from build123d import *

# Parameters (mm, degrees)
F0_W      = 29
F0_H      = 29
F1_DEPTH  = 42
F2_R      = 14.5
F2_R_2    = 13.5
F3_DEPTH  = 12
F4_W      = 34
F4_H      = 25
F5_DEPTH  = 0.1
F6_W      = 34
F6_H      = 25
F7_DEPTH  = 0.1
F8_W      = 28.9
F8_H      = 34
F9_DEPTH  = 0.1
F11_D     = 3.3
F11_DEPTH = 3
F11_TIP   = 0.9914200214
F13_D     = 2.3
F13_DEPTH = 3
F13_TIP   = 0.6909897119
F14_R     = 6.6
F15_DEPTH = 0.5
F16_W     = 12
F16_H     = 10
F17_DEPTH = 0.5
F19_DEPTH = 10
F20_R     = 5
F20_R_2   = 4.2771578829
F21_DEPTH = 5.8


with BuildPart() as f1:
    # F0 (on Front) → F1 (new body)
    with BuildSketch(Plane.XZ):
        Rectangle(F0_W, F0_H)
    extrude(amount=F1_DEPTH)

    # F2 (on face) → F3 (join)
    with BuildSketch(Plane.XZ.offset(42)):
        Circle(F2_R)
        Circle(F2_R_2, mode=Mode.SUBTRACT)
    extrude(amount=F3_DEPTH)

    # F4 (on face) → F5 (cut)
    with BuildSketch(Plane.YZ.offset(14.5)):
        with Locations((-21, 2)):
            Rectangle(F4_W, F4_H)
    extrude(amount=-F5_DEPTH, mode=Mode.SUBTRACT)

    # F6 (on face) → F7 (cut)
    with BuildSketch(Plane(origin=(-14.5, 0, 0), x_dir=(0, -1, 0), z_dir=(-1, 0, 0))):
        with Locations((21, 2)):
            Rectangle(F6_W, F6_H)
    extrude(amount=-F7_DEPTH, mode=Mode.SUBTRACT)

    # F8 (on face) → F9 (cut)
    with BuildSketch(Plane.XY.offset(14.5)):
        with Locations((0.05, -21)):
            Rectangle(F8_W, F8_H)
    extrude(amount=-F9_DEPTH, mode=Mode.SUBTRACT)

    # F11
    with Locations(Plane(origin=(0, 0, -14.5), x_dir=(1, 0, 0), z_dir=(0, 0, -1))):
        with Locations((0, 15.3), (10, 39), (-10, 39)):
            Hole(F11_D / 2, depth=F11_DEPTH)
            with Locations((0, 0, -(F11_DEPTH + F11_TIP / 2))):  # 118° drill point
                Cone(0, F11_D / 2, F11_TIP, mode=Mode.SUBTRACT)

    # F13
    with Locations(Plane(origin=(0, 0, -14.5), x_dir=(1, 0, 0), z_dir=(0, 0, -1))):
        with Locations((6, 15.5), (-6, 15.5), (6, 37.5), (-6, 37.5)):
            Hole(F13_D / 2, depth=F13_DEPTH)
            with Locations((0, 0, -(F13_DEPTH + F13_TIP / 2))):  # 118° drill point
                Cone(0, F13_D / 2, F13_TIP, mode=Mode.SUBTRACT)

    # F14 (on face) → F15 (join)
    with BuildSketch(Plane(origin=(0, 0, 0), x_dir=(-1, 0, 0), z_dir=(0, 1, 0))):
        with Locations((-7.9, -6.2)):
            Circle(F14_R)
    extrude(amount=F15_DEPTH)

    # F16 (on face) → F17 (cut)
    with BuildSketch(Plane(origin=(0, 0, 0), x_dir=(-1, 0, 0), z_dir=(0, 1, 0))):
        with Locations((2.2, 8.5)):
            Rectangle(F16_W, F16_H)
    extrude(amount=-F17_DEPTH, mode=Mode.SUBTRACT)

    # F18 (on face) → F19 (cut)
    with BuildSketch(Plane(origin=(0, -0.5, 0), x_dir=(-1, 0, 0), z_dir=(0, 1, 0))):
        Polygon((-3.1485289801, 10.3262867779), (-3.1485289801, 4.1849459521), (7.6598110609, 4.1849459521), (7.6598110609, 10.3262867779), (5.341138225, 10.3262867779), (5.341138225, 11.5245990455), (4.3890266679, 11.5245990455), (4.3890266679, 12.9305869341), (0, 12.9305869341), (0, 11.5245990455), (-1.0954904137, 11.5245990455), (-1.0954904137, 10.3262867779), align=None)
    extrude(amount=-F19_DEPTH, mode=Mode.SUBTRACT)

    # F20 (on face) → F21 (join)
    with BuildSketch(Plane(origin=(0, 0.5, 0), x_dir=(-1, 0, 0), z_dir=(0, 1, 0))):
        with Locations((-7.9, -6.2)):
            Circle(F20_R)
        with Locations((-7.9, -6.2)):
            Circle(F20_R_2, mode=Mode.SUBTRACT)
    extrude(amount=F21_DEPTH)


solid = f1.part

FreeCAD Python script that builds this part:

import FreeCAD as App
import Part
import Sketcher
from FreeCAD import Vector


def add_polygon(sketch, points):
    """Adds a closed chain of lines whose ends are joined by coincident constraints."""
    first, n = sketch.GeometryCount, len(points)
    for a, b in zip(points, points[1:] + points[:1]):
        sketch.addGeometry(Part.LineSegment(App.Vector(*a, 0), App.Vector(*b, 0)), False)
    for i in range(n):
        sketch.addConstraint(Sketcher.Constraint("Coincident", first + i, 2, first + (i + 1) % n, 1))

doc = App.newDocument("Part")
params = doc.addObject("Spreadsheet::Sheet", "Params")
for row, (alias, value) in enumerate([
    ("sketch1_width", "29 mm"),
    ("pad1_length", "42 mm"),
    ("sketch2_diameter", "29 mm"),
    ("sketch2_diameter2", "27 mm"),
    ("pad2_length", "12 mm"),
    ("sketch3_width", "34 mm"),
    ("sketch3_height", "25 mm"),
    ("pocket1_length", "0.1 mm"),
    ("sketch4_width", "34 mm"),
    ("sketch4_height", "25 mm"),
    ("pocket2_length", "0.1 mm"),
    ("sketch5_height", "34 mm"),
    ("sketch5_width", "28.9 mm"),
    ("pocket3_length", "0.1 mm"),
    ("sketch6_diameter", "3.3 mm"),
    ("hole_diameter", "3.3 mm"),
    ("hole_depth", "3 mm"),
    ("sketch7_diameter", "2.3 mm"),
    ("hole2_diameter", "2.3 mm"),
    ("hole2_depth", "3 mm"),
    ("sketch8_diameter", "13.2 mm"),
    ("pad3_length", "0.5 mm"),
    ("sketch9_width", "12 mm"),
    ("sketch9_height", "10 mm"),
    ("pocket4_length", "0.5 mm"),
    ("pocket5_length", "10 mm"),
    ("sketch11_diameter", "10 mm"),
    ("pad4_length", "5.8 mm"),
], start=1):
    params.set(f"A{row}", alias)
    params.set(f"B{row}", "=" + value)
    params.setAlias(f"B{row}", alias)

body = doc.addObject("PartDesign::Body", "Body")

# Sketch on XZ plane
sketch1 = doc.addObject("Sketcher::SketchObject", "Sketch")
body.addObject(sketch1)
sketch1.AttachmentSupport = (doc.XZ_Plane, [""])
sketch1.MapMode = "FlatFace"
add_polygon(sketch1, [(-14, 14), (-14, -14), (14, -14), (14, 14)])  # lines 0-3
sketch1.addConstraint([
    Sketcher.Constraint("Vertical", 0),
    Sketcher.Constraint("Horizontal", 1),
    Sketcher.Constraint("Vertical", 2),
    Sketcher.Constraint("Horizontal", 3),
    Sketcher.Constraint("Symmetric", 0, 2, 2, 2, -1, 1),
    Sketcher.Constraint("Equal", 3, 0),
    Sketcher.Constraint("DistanceX", 1, 1, 1, 2, 29.0),
])
sketch1.setExpression("Constraints[10]", "Params.sketch1_width")
pad1 = doc.addObject("PartDesign::Pad", "Pad")
body.addObject(pad1)
pad1.Profile = sketch1
pad1.setExpression("Length", "Params.pad1_length")

# Sketch on XZ plane
sketch2 = doc.addObject("Sketcher::SketchObject", "Sketch001")
body.addObject(sketch2)
sketch2.AttachmentSupport = (doc.XZ_Plane, [""])
sketch2.MapMode = "FlatFace"
sketch2.AttachmentOffset = App.Placement(Vector(0, 0, 42), App.Rotation())
sketch2.addGeometry([
    Part.Circle(Vector(0, 0, 0), Vector(0, 0, 1), 14),
    Part.Circle(Vector(0, 0, 0), Vector(0, 0, 1), 14),
], False)
sketch2.addConstraint([
    Sketcher.Constraint("Coincident", 0, 3, -1, 1),
    Sketcher.Constraint("Coincident", 1, 3, -1, 1),
    Sketcher.Constraint("Diameter", 0, 29.0),
    Sketcher.Constraint("Diameter", 1, 27.0),
])
sketch2.setExpression("Constraints[2]", "Params.sketch2_diameter")
sketch2.setExpression("Constraints[3]", "Params.sketch2_diameter2")
pad2 = doc.addObject("PartDesign::Pad", "Pad001")
body.addObject(pad2)
pad2.Profile = sketch2
pad2.setExpression("Length", "Params.pad2_length")

# Sketch on YZ plane
sketch3 = doc.addObject("Sketcher::SketchObject", "Sketch002")
body.addObject(sketch3)
sketch3.AttachmentSupport = (doc.YZ_Plane, [""])
sketch3.MapMode = "FlatFace"
sketch3.AttachmentOffset = App.Placement(Vector(0, 0, 14.5), App.Rotation())
add_polygon(sketch3, [(-38, 14), (-38, -10), (-4, -10), (-4, 14)])  # lines 0-3
sketch3.addConstraint([
    Sketcher.Constraint("Vertical", 0),
    Sketcher.Constraint("Horizontal", 1),
    Sketcher.Constraint("Vertical", 2),
    Sketcher.Constraint("Horizontal", 3),
    Sketcher.Constraint("DistanceX", 1, 1, 1, 2, 34.0),
    Sketcher.Constraint("DistanceY", 0, 2, 0, 1, 25.0),
    Sketcher.Constraint("DistanceX", 0, 2, -1, 1, 38.0),
    Sketcher.Constraint("DistanceY", 0, 2, -1, 1, 10.5),
])
sketch3.setExpression("Constraints[8]", "Params.sketch3_width")
sketch3.setExpression("Constraints[9]", "Params.sketch3_height")
pocket1 = doc.addObject("PartDesign::Pocket", "Pocket")
body.addObject(pocket1)
pocket1.Profile = sketch3
pocket1.setExpression("Length", "Params.pocket1_length")

# Sketch on YZ plane
sketch4 = doc.addObject("Sketcher::SketchObject", "Sketch003")
body.addObject(sketch4)
sketch4.AttachmentSupport = (doc.YZ_Plane, [""])
sketch4.MapMode = "FlatFace"
sketch4.AttachmentOffset = App.Placement(Vector(0, 0, -14.5), App.Rotation())
add_polygon(sketch4, [(-4, 14), (-4, -10), (-38, -10), (-38, 14)])  # lines 0-3
sketch4.addConstraint([
    Sketcher.Constraint("Vertical", 0),
    Sketcher.Constraint("Horizontal", 1),
    Sketcher.Constraint("Vertical", 2),
    Sketcher.Constraint("Horizontal", 3),
    Sketcher.Constraint("DistanceX", 1, 2, 1, 1, 34.0),
    Sketcher.Constraint("DistanceY", 0, 2, 0, 1, 25.0),
    Sketcher.Constraint("DistanceX", 0, 2, -1, 1, 4.0),
    Sketcher.Constraint("DistanceY", 0, 2, -1, 1, 10.5),
])
sketch4.setExpression("Constraints[8]", "Params.sketch4_width")
sketch4.setExpression("Constraints[9]", "Params.sketch4_height")
pocket2 = doc.addObject("PartDesign::Pocket", "Pocket001")
body.addObject(pocket2)
pocket2.Profile = sketch4
pocket2.setExpression("Length", "Params.pocket2_length")
pocket2.Reversed = True

# Sketch on XY plane
sketch5 = doc.addObject("Sketcher::SketchObject", "Sketch004")
body.addObject(sketch5)
sketch5.AttachmentSupport = (doc.XY_Plane, [""])
sketch5.MapMode = "FlatFace"
sketch5.AttachmentOffset = App.Placement(Vector(0, 0, 14.5), App.Rotation())
add_polygon(sketch5, [(-14, -4), (-14, -38), (14, -38), (14, -4)])  # lines 0-3
sketch5.addConstraint([
    Sketcher.Constraint("Vertical", 0),
    Sketcher.Constraint("Horizontal", 1),
    Sketcher.Constraint("Vertical", 2),
    Sketcher.Constraint("Horizontal", 3),
    Sketcher.Constraint("DistanceY", 0, 2, 0, 1, 34.0),
    Sketcher.Constraint("DistanceX", 1, 1, 1, 2, 28.9),
    Sketcher.Constraint("DistanceY", 0, 2, -1, 1, 38.0),
    Sketcher.Constraint("DistanceX", 0, 2, -1, 1, 14.4),
])
sketch5.setExpression("Constraints[8]", "Params.sketch5_height")
sketch5.setExpression("Constraints[9]", "Params.sketch5_width")
pocket3 = doc.addObject("PartDesign::Pocket", "Pocket002")
body.addObject(pocket3)
pocket3.Profile = sketch5
pocket3.setExpression("Length", "Params.pocket3_length")

# Sketch on XY plane
sketch6 = doc.addObject("Sketcher::SketchObject", "Sketch005")
body.addObject(sketch6)
sketch6.AttachmentSupport = (doc.XY_Plane, [""])
sketch6.MapMode = "FlatFace"
sketch6.AttachmentOffset = App.Placement(Vector(0, 0, -14.5), App.Rotation())
sketch6.addGeometry([
    Part.Circle(Vector(0, -15.3, 0), Vector(0, 0, 1), 1.6),
    Part.Circle(Vector(10, -39, 0), Vector(0, 0, 1), 1.6),
    Part.Circle(Vector(-10, -39, 0), Vector(0, 0, 1), 1.6),
], False)
sketch6.addConstraint([
    Sketcher.Constraint("Equal", 0, 1),
    Sketcher.Constraint("Equal", 1, 2),
    Sketcher.Constraint("Symmetric", 1, 3, 2, 3, -2),
    Sketcher.Constraint("PointOnObject", 0, 3, -2),
    Sketcher.Constraint("Diameter", 0, 3.3),
    Sketcher.Constraint("DistanceX", -1, 1, 1, 3, 10.0),
    Sketcher.Constraint("DistanceY", 1, 3, -1, 1, 39.0),
    Sketcher.Constraint("DistanceY", 0, 3, -1, 1, 15.3),
])
sketch6.setExpression("Constraints[4]", "Params.sketch6_diameter")
doc.recompute()
hole = doc.addObject("PartDesign::Hole", "Hole")
body.addObject(hole)
hole.Profile = sketch6
hole.ThreadType = "None"
hole.setExpression("Diameter", "Params.hole_diameter")
hole.DepthType = "Dimension"
hole.setExpression("Depth", "Params.hole_depth")
hole.DrillPoint = "Angled"
hole.DrillPointAngle = 118
hole.Reversed = True

# Sketch on XY plane
sketch7 = doc.addObject("Sketcher::SketchObject", "Sketch006")
body.addObject(sketch7)
sketch7.AttachmentSupport = (doc.XY_Plane, [""])
sketch7.MapMode = "FlatFace"
sketch7.AttachmentOffset = App.Placement(Vector(0, 0, -14.5), App.Rotation())
sketch7.addGeometry([
    Part.Circle(Vector(6, -15.5, 0), Vector(0, 0, 1), 1.1),
    Part.Circle(Vector(-6, -15.5, 0), Vector(0, 0, 1), 1.1),
    Part.Circle(Vector(6, -37.5, 0), Vector(0, 0, 1), 1.1),
    Part.Circle(Vector(-6, -37.5, 0), Vector(0, 0, 1), 1.1),
], False)
sketch7.addConstraint([
    Sketcher.Constraint("Equal", 0, 1),
    Sketcher.Constraint("Equal", 1, 2),
    Sketcher.Constraint("Equal", 2, 3),
    Sketcher.Constraint("Symmetric", 0, 3, 1, 3, -2),
    Sketcher.Constraint("Symmetric", 2, 3, 3, 3, -2),
    Sketcher.Constraint("Vertical", 0, 3, 2, 3),
    Sketcher.Constraint("Diameter", 0, 2.3),
    Sketcher.Constraint("DistanceX", -1, 1, 0, 3, 6.0),
    Sketcher.Constraint("DistanceY", 2, 3, 0, 3, 22.0),
    Sketcher.Constraint("DistanceY", 0, 3, -1, 1, 15.5),
])
sketch7.setExpression("Constraints[6]", "Params.sketch7_diameter")
doc.recompute()
hole2 = doc.addObject("PartDesign::Hole", "Hole001")
body.addObject(hole2)
hole2.Profile = sketch7
hole2.ThreadType = "None"
hole2.setExpression("Diameter", "Params.hole2_diameter")
hole2.DepthType = "Dimension"
hole2.setExpression("Depth", "Params.hole2_depth")
hole2.DrillPoint = "Angled"
hole2.DrillPointAngle = 118
hole2.Reversed = True

# Sketch on XZ plane
sketch8 = doc.addObject("Sketcher::SketchObject", "Sketch007")
body.addObject(sketch8)
sketch8.AttachmentSupport = (doc.XZ_Plane, [""])
sketch8.MapMode = "FlatFace"
sketch8.addGeometry(Part.Circle(Vector(8, -6, 0), Vector(0, 0, 1), 7), False)
sketch8.addConstraint([
    Sketcher.Constraint("Diameter", 0, 13.2),
    Sketcher.Constraint("DistanceX", -1, 1, 0, 3, 7.9),
    Sketcher.Constraint("DistanceY", 0, 3, -1, 1, 6.2),
])
sketch8.setExpression("Constraints[0]", "Params.sketch8_diameter")
pad3 = doc.addObject("PartDesign::Pad", "Pad002")
body.addObject(pad3)
pad3.Profile = sketch8
pad3.setExpression("Length", "Params.pad3_length")
pad3.Reversed = True

# Sketch on XZ plane
sketch9 = doc.addObject("Sketcher::SketchObject", "Sketch008")
body.addObject(sketch9)
sketch9.AttachmentSupport = (doc.XZ_Plane, [""])
sketch9.MapMode = "FlatFace"
add_polygon(sketch9, [(4, 14), (4, 4), (-8, 4), (-8, 14)])  # lines 0-3
sketch9.addConstraint([
    Sketcher.Constraint("Vertical", 0),
    Sketcher.Constraint("Horizontal", 1),
    Sketcher.Constraint("Vertical", 2),
    Sketcher.Constraint("Horizontal", 3),
    Sketcher.Constraint("DistanceX", 1, 2, 1, 1, 12.0),
    Sketcher.Constraint("DistanceY", 0, 2, 0, 1, 10.0),
    Sketcher.Constraint("DistanceX", -1, 1, 0, 2, 3.8),
    Sketcher.Constraint("DistanceY", -1, 1, 0, 2, 3.5),
])
sketch9.setExpression("Constraints[8]", "Params.sketch9_width")
sketch9.setExpression("Constraints[9]", "Params.sketch9_height")
pocket4 = doc.addObject("PartDesign::Pocket", "Pocket003")
body.addObject(pocket4)
pocket4.Profile = sketch9
pocket4.setExpression("Length", "Params.pocket4_length")
pocket4.Reversed = True

# Sketch on XZ plane
sketch10 = doc.addObject("Sketcher::SketchObject", "Sketch009")
body.addObject(sketch10)
sketch10.AttachmentSupport = (doc.XZ_Plane, [""])
sketch10.MapMode = "FlatFace"
sketch10.AttachmentOffset = App.Placement(Vector(0, 0, 0.5), App.Rotation())
add_polygon(sketch10, [(3.1, 10.3), (3.1, 4.2), (-7.7, 4.2), (-7.7, 10.3), (-5.3, 10.3), (-5.3, 11.5), (-4.4, 11.5), (-4.4, 12.9), (0, 12.9), (0, 11.5), (1.1, 11.5), (1.1, 10.3)])  # lines 0-11
sketch10.addConstraint([
    Sketcher.Constraint("Vertical", 0),
    Sketcher.Constraint("Horizontal", 1),
    Sketcher.Constraint("Vertical", 2),
    Sketcher.Constraint("Horizontal", 3),
    Sketcher.Constraint("Vertical", 4),
    Sketcher.Constraint("Horizontal", 5),
    Sketcher.Constraint("Vertical", 6),
    Sketcher.Constraint("Horizontal", 7),
    Sketcher.Constraint("Vertical", 8),
    Sketcher.Constraint("Horizontal", 9),
    Sketcher.Constraint("Vertical", 10),
    Sketcher.Constraint("Horizontal", 11),
    Sketcher.Constraint("PointOnObject", 7, 2, -2),
    Sketcher.Constraint("Horizontal", 5, 2, 8, 2),
    Sketcher.Constraint("Horizontal", 3, 2, 10, 2),
    Sketcher.Constraint("DistanceX", 1, 2, 1, 1, 10.80834),
    Sketcher.Constraint("DistanceX", 5, 1, 5, 2, 0.952112),
    Sketcher.Constraint("DistanceX", 9, 1, 9, 2, 1.09549),
    Sketcher.Constraint("DistanceX", 11, 1, 11, 2, 2.053039),
    Sketcher.Constraint("DistanceY", 0, 2, 0, 1, 6.141341),
    Sketcher.Constraint("DistanceY", -1, 1, 4, 2, 11.524599),
    Sketcher.Constraint("DistanceY", 3, 2, 6, 2, 2.6043),
    Sketcher.Constraint("DistanceX", 3, 1, 3, 2, 2.318673),
    Sketcher.Constraint("DistanceY", 4, 1, 4, 2, 1.198312),
])
pocket5 = doc.addObject("PartDesign::Pocket", "Pocket004")
body.addObject(pocket5)
pocket5.Profile = sketch10
pocket5.setExpression("Length", "Params.pocket5_length")
pocket5.Reversed = True

# Sketch on XZ plane
sketch11 = doc.addObject("Sketcher::SketchObject", "Sketch010")
body.addObject(sketch11)
sketch11.AttachmentSupport = (doc.XZ_Plane, [""])
sketch11.MapMode = "FlatFace"
sketch11.AttachmentOffset = App.Placement(Vector(0, 0, -0.5), App.Rotation())
sketch11.addGeometry([
    Part.Circle(Vector(7.9, -6.2, 0), Vector(0, 0, 1), 5),
    Part.Circle(Vector(7.9, -6.2, 0), Vector(0, 0, 1), 4.3),
], False)
sketch11.addConstraint([
    Sketcher.Constraint("Coincident", 1, 3, 0, 3),
    Sketcher.Constraint("Diameter", 0, 10.0),
    Sketcher.Constraint("DistanceX", -1, 1, 0, 3, 7.9),
    Sketcher.Constraint("DistanceY", 0, 3, -1, 1, 6.2),
    Sketcher.Constraint("Diameter", 1, 8.554316),
])
sketch11.setExpression("Constraints[1]", "Params.sketch11_diameter")
pad4 = doc.addObject("PartDesign::Pad", "Pad003")
body.addObject(pad4)
pad4.Profile = sketch11
pad4.setExpression("Length", "Params.pad4_length")
pad4.Reversed = True

doc.recompute()
